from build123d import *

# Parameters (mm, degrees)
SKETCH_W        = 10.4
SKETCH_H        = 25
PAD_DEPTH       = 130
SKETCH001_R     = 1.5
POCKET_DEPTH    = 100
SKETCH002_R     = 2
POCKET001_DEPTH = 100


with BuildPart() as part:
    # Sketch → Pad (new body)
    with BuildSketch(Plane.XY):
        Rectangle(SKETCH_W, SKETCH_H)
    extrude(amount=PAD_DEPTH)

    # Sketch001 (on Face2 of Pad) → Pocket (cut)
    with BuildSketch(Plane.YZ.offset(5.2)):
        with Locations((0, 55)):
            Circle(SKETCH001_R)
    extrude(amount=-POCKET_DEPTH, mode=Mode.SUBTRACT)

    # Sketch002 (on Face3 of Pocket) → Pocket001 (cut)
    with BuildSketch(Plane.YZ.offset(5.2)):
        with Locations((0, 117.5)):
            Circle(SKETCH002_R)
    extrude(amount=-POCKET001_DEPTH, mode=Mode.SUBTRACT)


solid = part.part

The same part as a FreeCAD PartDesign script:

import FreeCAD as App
import Part
import Sketcher

doc = App.newDocument("Part")
params = doc.addObject("Spreadsheet::Sheet", "Params")
for row, (alias, value) in enumerate([
    ("sketch1_height", "25 mm"),
    ("sketch1_width", "10.4 mm"),
    ("pad1_length", "130 mm"),
    ("sketch2_diameter", "3 mm"),
    ("pocket1_length", "100 mm"),
    ("sketch3_diameter", "4 mm"),
    ("pocket2_length", "100 mm"),
], start=1):
    params.set(f"A{row}", alias)
    params.set(f"B{row}", "=" + value)
    params.setAlias(f"B{row}", alias)

body = doc.addObject("PartDesign::Body", "Body")

# Sketch on XY plane
sketch1 = body.newObject("Sketcher::SketchObject", "Sketch")
sketch1.AttachmentSupport = (doc.getObject("XY_Plane"), [""])
sketch1.MapMode = "FlatFace"
sketch1.addGeometry(Part.LineSegment(App.Vector(-5.2, 12.5, 0), App.Vector(-5.2, -12.5, 0)), False)
sketch1.addGeometry(Part.LineSegment(App.Vector(-5.2, -12.5, 0), App.Vector(5.2, -12.5, 0)), False)
sketch1.addGeometry(Part.LineSegment(App.Vector(5.2, -12.5, 0), App.Vector(5.2, 12.5, 0)), False)
sketch1.addGeometry(Part.LineSegment(App.Vector(5.2, 12.5, 0), App.Vector(-5.2, 12.5, 0)), False)
sketch1.addConstraint(Sketcher.Constraint("Coincident", 0, 2, 1, 1))
sketch1.addConstraint(Sketcher.Constraint("Coincident", 1, 2, 2, 1))
sketch1.addConstraint(Sketcher.Constraint("Coincident", 2, 2, 3, 1))
sketch1.addConstraint(Sketcher.Constraint("Coincident", 3, 2, 0, 1))
sketch1.addConstraint(Sketcher.Constraint("Vertical", 0))
sketch1.addConstraint(Sketcher.Constraint("Horizontal", 1))
sketch1.addConstraint(Sketcher.Constraint("Vertical", 2))
sketch1.addConstraint(Sketcher.Constraint("Horizontal", 3))
sketch1.addConstraint(Sketcher.Constraint("Symmetric", 0, 2, 2, 2, -1, 1))
sketch1.addConstraint(Sketcher.Constraint("DistanceY", 0, 2, 0, 1, 25.0))
sketch1.addConstraint(Sketcher.Constraint("DistanceX", 1, 1, 1, 2, 10.4))
sketch1.setExpression("Constraints[9]", "Params.sketch1_height")
sketch1.setExpression("Constraints[10]", "Params.sketch1_width")
pad1 = body.newObject("PartDesign::Pad", "Pad")
pad1.Profile = sketch1
pad1.setExpression("Length", "Params.pad1_length")

# Sketch on YZ plane
sketch2 = body.newObject("Sketcher::SketchObject", "Sketch001")
sketch2.AttachmentSupport = (doc.getObject("YZ_Plane"), [""])
sketch2.MapMode = "FlatFace"
sketch2.AttachmentOffset = App.Placement(App.Vector(0, 0, 5.2), App.Rotation())
sketch2.addGeometry(Part.Circle(App.Vector(0, 55, 0), App.Vector(0, 0, 1), 1.5), False)
sketch2.addConstraint(Sketcher.Constraint("PointOnObject", 0, 3, -2))
sketch2.addConstraint(Sketcher.Constraint("Diameter", 0, 3.0))
sketch2.addConstraint(Sketcher.Constraint("DistanceY", -1, 1, 0, 3, 55.0))
sketch2.setExpression("Constraints[1]", "Params.sketch2_diameter")
pocket1 = body.newObject("PartDesign::Pocket", "Pocket")
pocket1.Profile = sketch2
pocket1.setExpression("Length", "Params.pocket1_length")

# Sketch on YZ plane
sketch3 = body.newObject("Sketcher::SketchObject", "Sketch002")
sketch3.AttachmentSupport = (doc.getObject("YZ_Plane"), [""])
sketch3.MapMode = "FlatFace"
sketch3.AttachmentOffset = App.Placement(App.Vector(0, 0, 5.2), App.Rotation())
sketch3.addGeometry(Part.Circle(App.Vector(0, 117.5, 0), App.Vector(0, 0, 1), 2), False)
sketch3.addConstraint(Sketcher.Constraint("PointOnObject", 0, 3, -2))
sketch3.addConstraint(Sketcher.Constraint("Diameter", 0, 4.0))
sketch3.addConstraint(Sketcher.Constraint("DistanceY", -1, 1, 0, 3, 117.5))
sketch3.setExpression("Constraints[1]", "Params.sketch3_diameter")
pocket2 = body.newObject("PartDesign::Pocket", "Pocket001")
pocket2.Profile = sketch3
pocket2.setExpression("Length", "Params.pocket2_length")

doc.recompute()
